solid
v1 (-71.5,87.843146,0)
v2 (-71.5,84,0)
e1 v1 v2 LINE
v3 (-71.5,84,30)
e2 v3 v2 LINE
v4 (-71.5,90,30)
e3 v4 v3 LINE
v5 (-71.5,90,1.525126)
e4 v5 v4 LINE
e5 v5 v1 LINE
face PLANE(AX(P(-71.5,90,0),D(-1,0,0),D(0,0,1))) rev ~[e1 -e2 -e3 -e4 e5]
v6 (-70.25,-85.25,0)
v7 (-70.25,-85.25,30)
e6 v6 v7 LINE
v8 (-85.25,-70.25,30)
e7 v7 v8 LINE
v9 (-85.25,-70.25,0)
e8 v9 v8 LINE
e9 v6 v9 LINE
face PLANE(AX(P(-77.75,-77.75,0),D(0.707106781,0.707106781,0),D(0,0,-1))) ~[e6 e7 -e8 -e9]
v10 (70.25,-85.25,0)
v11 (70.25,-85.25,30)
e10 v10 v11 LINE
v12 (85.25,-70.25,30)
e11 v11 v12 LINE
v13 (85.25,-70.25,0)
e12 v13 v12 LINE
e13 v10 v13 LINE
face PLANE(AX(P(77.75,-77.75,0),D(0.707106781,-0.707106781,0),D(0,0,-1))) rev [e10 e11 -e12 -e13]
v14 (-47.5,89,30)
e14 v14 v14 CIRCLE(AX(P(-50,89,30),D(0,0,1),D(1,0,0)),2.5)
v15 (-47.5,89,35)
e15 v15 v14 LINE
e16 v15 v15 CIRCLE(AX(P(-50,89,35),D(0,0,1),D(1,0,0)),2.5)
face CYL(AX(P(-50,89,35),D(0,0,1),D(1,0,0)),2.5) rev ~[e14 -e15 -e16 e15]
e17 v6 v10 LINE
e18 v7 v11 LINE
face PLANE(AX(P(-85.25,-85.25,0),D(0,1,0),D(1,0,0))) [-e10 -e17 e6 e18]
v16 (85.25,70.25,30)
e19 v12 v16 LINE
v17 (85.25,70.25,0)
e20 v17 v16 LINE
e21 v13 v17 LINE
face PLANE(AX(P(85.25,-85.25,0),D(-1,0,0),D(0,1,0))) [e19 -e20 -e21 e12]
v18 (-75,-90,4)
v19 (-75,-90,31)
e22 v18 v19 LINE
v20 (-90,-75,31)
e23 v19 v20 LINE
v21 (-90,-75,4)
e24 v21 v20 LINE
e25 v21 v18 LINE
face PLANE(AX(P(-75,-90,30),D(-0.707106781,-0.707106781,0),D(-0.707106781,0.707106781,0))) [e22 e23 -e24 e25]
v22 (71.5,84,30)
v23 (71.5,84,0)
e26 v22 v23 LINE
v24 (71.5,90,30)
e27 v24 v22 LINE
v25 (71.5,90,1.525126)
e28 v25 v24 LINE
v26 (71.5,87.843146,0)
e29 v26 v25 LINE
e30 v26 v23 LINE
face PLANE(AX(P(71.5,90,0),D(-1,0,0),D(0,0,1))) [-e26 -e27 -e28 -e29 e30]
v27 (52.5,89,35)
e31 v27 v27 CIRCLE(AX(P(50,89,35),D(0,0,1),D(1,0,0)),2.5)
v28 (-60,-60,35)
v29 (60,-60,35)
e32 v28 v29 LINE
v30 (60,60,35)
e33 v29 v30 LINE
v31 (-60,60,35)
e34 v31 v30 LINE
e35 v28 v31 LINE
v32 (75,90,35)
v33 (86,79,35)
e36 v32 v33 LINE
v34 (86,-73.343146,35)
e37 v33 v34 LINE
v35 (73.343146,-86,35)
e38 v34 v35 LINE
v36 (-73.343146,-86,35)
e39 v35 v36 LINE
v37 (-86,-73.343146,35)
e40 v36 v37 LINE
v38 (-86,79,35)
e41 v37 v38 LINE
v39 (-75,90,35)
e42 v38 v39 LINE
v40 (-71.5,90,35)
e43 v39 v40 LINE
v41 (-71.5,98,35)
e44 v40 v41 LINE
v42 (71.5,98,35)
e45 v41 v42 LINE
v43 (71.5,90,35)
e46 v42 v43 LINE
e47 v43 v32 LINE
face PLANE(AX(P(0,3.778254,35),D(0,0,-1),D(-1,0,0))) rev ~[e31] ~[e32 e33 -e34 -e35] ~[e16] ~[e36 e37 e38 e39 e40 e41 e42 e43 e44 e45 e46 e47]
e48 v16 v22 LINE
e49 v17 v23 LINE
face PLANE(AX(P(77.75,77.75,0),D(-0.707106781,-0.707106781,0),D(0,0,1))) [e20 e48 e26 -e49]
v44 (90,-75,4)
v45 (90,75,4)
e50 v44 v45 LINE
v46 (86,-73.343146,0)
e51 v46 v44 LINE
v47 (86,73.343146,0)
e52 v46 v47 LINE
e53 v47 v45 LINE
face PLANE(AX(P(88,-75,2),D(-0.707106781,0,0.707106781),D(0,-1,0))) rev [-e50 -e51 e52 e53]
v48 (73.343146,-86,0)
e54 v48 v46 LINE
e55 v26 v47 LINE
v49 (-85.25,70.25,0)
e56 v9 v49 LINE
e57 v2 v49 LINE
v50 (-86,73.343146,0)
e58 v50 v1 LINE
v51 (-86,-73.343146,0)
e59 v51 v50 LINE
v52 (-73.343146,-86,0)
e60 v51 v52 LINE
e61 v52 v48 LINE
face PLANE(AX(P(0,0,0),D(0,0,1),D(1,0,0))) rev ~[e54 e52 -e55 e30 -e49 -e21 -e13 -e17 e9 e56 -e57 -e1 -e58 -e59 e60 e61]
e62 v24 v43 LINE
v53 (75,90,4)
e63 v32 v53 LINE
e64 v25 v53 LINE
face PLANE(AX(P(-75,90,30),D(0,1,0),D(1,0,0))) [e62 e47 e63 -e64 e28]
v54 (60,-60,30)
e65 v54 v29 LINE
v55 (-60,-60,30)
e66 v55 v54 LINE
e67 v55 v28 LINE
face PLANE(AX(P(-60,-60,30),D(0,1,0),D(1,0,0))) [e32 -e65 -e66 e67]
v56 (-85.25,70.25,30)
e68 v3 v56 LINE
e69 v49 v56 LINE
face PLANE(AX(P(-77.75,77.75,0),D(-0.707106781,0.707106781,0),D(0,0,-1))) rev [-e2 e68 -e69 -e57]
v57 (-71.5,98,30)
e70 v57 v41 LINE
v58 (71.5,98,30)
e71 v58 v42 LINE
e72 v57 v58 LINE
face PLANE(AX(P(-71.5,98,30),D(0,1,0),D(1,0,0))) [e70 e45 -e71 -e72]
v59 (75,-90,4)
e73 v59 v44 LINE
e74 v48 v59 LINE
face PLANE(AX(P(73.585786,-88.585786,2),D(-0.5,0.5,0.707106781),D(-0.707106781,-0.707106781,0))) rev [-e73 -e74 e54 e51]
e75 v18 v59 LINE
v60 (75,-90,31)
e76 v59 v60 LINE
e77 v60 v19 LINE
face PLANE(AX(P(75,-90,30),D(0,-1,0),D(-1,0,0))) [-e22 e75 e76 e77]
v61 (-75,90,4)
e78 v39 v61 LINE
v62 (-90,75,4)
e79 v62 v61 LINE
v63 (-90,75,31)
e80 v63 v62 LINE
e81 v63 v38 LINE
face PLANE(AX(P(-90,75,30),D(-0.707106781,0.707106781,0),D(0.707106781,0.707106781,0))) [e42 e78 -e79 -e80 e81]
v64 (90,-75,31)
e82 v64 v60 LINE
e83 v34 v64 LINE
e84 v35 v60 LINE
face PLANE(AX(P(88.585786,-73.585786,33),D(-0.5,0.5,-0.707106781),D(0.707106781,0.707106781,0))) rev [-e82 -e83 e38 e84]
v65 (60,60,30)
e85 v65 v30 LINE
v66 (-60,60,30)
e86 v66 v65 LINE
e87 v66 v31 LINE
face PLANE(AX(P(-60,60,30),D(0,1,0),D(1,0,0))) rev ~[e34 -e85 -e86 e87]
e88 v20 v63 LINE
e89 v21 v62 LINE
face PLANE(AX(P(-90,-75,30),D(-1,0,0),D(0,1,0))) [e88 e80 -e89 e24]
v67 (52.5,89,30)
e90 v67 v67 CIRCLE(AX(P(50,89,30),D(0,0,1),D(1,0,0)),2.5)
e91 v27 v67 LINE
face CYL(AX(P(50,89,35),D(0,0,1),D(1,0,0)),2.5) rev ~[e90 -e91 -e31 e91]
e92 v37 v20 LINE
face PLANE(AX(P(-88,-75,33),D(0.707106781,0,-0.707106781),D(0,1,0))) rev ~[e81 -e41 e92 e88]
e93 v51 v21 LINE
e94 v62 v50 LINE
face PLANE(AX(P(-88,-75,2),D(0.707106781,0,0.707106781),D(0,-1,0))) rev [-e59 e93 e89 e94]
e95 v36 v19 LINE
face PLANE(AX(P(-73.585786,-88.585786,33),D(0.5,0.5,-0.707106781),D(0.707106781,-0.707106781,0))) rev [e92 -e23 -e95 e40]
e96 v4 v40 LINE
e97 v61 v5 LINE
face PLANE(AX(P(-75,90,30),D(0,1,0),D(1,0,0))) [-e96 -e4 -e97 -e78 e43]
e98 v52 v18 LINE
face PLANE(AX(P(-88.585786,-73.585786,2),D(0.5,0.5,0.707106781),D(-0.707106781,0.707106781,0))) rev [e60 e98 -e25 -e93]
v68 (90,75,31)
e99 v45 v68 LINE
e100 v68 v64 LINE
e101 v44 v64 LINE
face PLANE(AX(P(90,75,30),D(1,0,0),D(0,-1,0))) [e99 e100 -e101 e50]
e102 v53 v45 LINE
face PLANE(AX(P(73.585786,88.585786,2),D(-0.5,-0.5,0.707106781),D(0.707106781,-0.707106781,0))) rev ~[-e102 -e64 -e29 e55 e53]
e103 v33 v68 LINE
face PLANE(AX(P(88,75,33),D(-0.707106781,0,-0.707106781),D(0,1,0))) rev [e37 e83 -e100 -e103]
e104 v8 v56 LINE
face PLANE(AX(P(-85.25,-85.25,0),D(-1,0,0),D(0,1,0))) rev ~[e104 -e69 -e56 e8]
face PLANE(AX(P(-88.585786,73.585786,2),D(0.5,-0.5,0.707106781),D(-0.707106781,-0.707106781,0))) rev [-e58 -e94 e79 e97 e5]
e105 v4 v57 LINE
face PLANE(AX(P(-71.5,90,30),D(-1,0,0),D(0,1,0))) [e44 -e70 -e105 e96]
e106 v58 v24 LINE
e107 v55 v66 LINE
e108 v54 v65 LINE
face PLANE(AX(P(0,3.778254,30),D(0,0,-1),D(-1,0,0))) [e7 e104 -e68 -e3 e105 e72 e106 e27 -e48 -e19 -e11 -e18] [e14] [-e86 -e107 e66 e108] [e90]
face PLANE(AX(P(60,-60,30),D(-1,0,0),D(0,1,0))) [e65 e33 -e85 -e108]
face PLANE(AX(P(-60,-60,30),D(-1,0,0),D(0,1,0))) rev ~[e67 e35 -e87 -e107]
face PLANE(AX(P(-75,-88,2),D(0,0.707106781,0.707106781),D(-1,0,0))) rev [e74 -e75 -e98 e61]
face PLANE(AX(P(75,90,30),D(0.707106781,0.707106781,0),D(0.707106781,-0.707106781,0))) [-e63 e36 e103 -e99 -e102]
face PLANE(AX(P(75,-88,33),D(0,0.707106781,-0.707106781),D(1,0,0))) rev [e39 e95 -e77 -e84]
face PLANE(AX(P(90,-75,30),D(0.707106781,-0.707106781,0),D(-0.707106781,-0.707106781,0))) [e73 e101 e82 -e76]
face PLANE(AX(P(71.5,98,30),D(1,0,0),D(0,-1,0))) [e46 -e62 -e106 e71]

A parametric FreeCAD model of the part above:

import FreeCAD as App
import Part
import Sketcher

V = App.Vector
Q = App.Units.Quantity


def edges_at(feature, points):
    """Names of the edges that pass closest to the given points."""
    edges = feature.Shape.Edges
    near = lambda p: min(range(len(edges)), key=lambda i: edges[i].distToShape(Part.Vertex(*p))[0])
    return sorted({f"Edge{near(p) + 1}" for p in points})

doc = App.newDocument("Part")
body = doc.addObject("PartDesign::Body", "Body")

# Sketch on XY plane
sketch1 = body.newObject("Sketcher::SketchObject", "Sketch")
sketch1.AttachmentSupport = (doc.getObject("XY_Plane"), [""])
sketch1.MapMode = "FlatFace"
sketch1.addGeometry([
    Part.LineSegment(V(-90, 90, 0), V(-90, -90, 0)),  # 0
    Part.LineSegment(V(-90, -90, 0), V(90, -90, 0)),  # 1
    Part.LineSegment(V(90, -90, 0), V(90, 90, 0)),  # 2
    Part.LineSegment(V(90, 90, 0), V(-90, 90, 0)),  # 3
    Part.LineSegment(V(85.25, -85.25, 0), V(-85.25, -85.25, 0)),  # 4
    Part.LineSegment(V(-85.25, -85.25, 0), V(-85.25, 85.25, 0)),  # 5
    Part.LineSegment(V(-85.25, 85.25, 0), V(85.25, 85.25, 0)),  # 6
    Part.LineSegment(V(85.25, 85.25, 0), V(85.25, -85.25, 0)),  # 7
], False)
sketch1.addConstraint([
    Sketcher.Constraint("Coincident", 0, 2, 1, 1),
    Sketcher.Constraint("Coincident", 1, 2, 2, 1),
    Sketcher.Constraint("Coincident", 2, 2, 3, 1),
    Sketcher.Constraint("Coincident", 3, 2, 0, 1),
    Sketcher.Constraint("Coincident", 4, 2, 5, 1),
    Sketcher.Constraint("Coincident", 5, 2, 6, 1),
    Sketcher.Constraint("Coincident", 6, 2, 7, 1),
    Sketcher.Constraint("Coincident", 7, 2, 4, 1),
    Sketcher.Constraint("Vertical", 0),
    Sketcher.Constraint("Horizontal", 1),
    Sketcher.Constraint("Vertical", 2),
    Sketcher.Constraint("Horizontal", 3),
    Sketcher.Constraint("Horizontal", 4),
    Sketcher.Constraint("Vertical", 5),
    Sketcher.Constraint("Horizontal", 6),
    Sketcher.Constraint("Vertical", 7),
    Sketcher.Constraint("Symmetric", 0, 2, 2, 2, -1, 1),
    Sketcher.Constraint("Symmetric", 4, 2, 6, 2, -1, 1),
    Sketcher.Constraint("Equal", 3, 0),
    Sketcher.Constraint("Equal", 6, 5),
    Sketcher.Constraint("DistanceX", 1, 1, 1, 2, Q("180 mm")),
    Sketcher.Constraint("DistanceX", 4, 2, 4, 1, Q("170.5 mm")),
])
pad1 = body.newObject("PartDesign::Pad", "Pad")
pad1.Profile = sketch1
pad1.Length = 30
doc.recompute()

chamfer = body.newObject("PartDesign::Chamfer", "Chamfer")
chamfer.Base = (pad1, edges_at(pad1, [
    (-90, -90, 15),
    (-85.25, -85.25, 15),
    (-85.25, 85.25, 15),
    (-90, 90, 15),
    (85.25, 85.25, 15),
    (90, 90, 15),
    (85.25, -85.25, 15),
    (90, -90, 15),
]))
chamfer.Size = 15

# Sketch on XY plane
sketch2 = body.newObject("Sketcher::SketchObject", "Sketch001")
sketch2.AttachmentSupport = (doc.getObject("XY_Plane"), [""])
sketch2.MapMode = "FlatFace"
sketch2.AttachmentOffset = App.Placement(V(0, 0, 30), App.Rotation())
sketch2.addGeometry([
    Part.LineSegment(V(-90, 75, 0), V(-90, -75, 0)),  # 0
    Part.LineSegment(V(-90, -75, 0), V(-75, -90, 0)),  # 1
    Part.LineSegment(V(-75, -90, 0), V(75, -90, 0)),  # 2
    Part.LineSegment(V(75, -90, 0), V(90, -75, 0)),  # 3
    Part.LineSegment(V(90, -75, 0), V(90, 75, 0)),  # 4
    Part.LineSegment(V(90, 75, 0), V(75, 90, 0)),  # 5
    Part.LineSegment(V(75, 90, 0), V(71.5, 90, 0)),  # 6
    Part.LineSegment(V(71.5, 90, 0), V(71.5, 98, 0)),  # 7
    Part.LineSegment(V(71.5, 98, 0), V(-71.5, 98, 0)),  # 8
    Part.LineSegment(V(-71.5, 98, 0), V(-71.5, 90, 0)),  # 9
    Part.LineSegment(V(-71.5, 90, 0), V(-75, 90, 0)),  # 10
    Part.LineSegment(V(-75, 90, 0), V(-90, 75, 0)),  # 11
    Part.LineSegment(V(-60, -60, 0), V(-60, 60, 0)),  # 12
    Part.LineSegment(V(-60, 60, 0), V(60, 60, 0)),  # 13
    Part.LineSegment(V(60, 60, 0), V(60, -60, 0)),  # 14
    Part.LineSegment(V(60, -60, 0), V(-60, -60, 0)),  # 15
], False)
sketch2.addConstraint([
    Sketcher.Constraint("Coincident", 0, 2, 1, 1),
    Sketcher.Constraint("Coincident", 1, 2, 2, 1),
    Sketcher.Constraint("Coincident", 2, 2, 3, 1),
    Sketcher.Constraint("Coincident", 3, 2, 4, 1),
    Sketcher.Constraint("Coincident", 4, 2, 5, 1),
    Sketcher.Constraint("Coincident", 5, 2, 6, 1),
    Sketcher.Constraint("Coincident", 6, 2, 7, 1),
    Sketcher.Constraint("Coincident", 7, 2, 8, 1),
    Sketcher.Constraint("Coincident", 8, 2, 9, 1),
    Sketcher.Constraint("Coincident", 9, 2, 10, 1),
    Sketcher.Constraint("Coincident", 10, 2, 11, 1),
    Sketcher.Constraint("Coincident", 11, 2, 0, 1),
    Sketcher.Constraint("Coincident", 12, 2, 13, 1),
    Sketcher.Constraint("Coincident", 13, 2, 14, 1),
    Sketcher.Constraint("Coincident", 14, 2, 15, 1),
    Sketcher.Constraint("Coincident", 15, 2, 12, 1),
    Sketcher.Constraint("Vertical", 0),
    Sketcher.Constraint("Horizontal", 2),
    Sketcher.Constraint("Vertical", 4),
    Sketcher.Constraint("Horizontal", 6),
    Sketcher.Constraint("Vertical", 7),
    Sketcher.Constraint("Horizontal", 8),
    Sketcher.Constraint("Vertical", 9),
    Sketcher.Constraint("Horizontal", 10),
    Sketcher.Constraint("Vertical", 12),
    Sketcher.Constraint("Horizontal", 13),
    Sketcher.Constraint("Vertical", 14),
    Sketcher.Constraint("Horizontal", 15),
    Sketcher.Constraint("Symmetric", 0, 2, 4, 2, -1, 1),
    Sketcher.Constraint("Symmetric", 1, 2, 5, 2, -1, 1),
    Sketcher.Constraint("Symmetric", 2, 2, 10, 2, -1, 1),
    Sketcher.Constraint("Symmetric", 12, 2, 14, 2, -1, 1),
    Sketcher.Constraint("Perpendicular", 1, 3),
    Sketcher.Constraint("Perpendicular", 5, 11),
    Sketcher.Constraint("Horizontal", 0, 2, 3, 2),
    Sketcher.Constraint("Vertical", 2, 2, 5, 2),
    Sketcher.Constraint("Equal", 6, 10),
    Sketcher.Constraint("Equal", 2, 0),
    Sketcher.Constraint("Equal", 15, 12),
    Sketcher.Constraint("DistanceX", 2, 1, 2, 2, Q("150 mm")),
    Sketcher.Constraint("DistanceX", 8, 2, 8, 1, Q("143 mm")),
    Sketcher.Constraint("DistanceX", 13, 1, 13, 2, Q("120 mm")),
    Sketcher.Constraint("DistanceY", 7, 1, 7, 2, Q("8 mm")),
    Sketcher.Constraint("DistanceX", 0, 2, -1, 1, Q("90 mm")),
])
pad2 = body.newObject("PartDesign::Pad", "Pad001")
pad2.Profile = sketch2
pad2.Length = 5

# Sketch on XZ plane
sketch3 = body.newObject("Sketcher::SketchObject", "Sketch002")
sketch3.AttachmentSupport = (doc.getObject("XZ_Plane"), [""])
sketch3.MapMode = "FlatFace"
sketch3.AttachmentOffset = App.Placement(V(0, 0, -90), App.Rotation())
sketch3.addGeometry([
    Part.LineSegment(V(71.5, 30, 0), V(71.5, 0, 0)),
    Part.LineSegment(V(71.5, 0, 0), V(-71.5, 0, 0)),
    Part.LineSegment(V(-71.5, 0, 0), V(-71.5, 30, 0)),
    Part.LineSegment(V(-71.5, 30, 0), V(71.5, 30, 0)),
], False)
sketch3.addConstraint([
    Sketcher.Constraint("Coincident", 0, 2, 1, 1),
    Sketcher.Constraint("Coincident", 1, 2, 2, 1),
    Sketcher.Constraint("Coincident", 2, 2, 3, 1),
    Sketcher.Constraint("Coincident", 3, 2, 0, 1),
    Sketcher.Constraint("Vertical", 0),
    Sketcher.Constraint("Horizontal", 1),
    Sketcher.Constraint("Vertical", 2),
    Sketcher.Constraint("Horizontal", 3),
    Sketcher.Constraint("Symmetric", 0, 2, 1, 2, -1, 1),
    Sketcher.Constraint("DistanceX", 1, 2, 1, 1, Q("143 mm")),
    Sketcher.Constraint("DistanceY", 0, 2, 0, 1, Q("30 mm")),
])
pocket1 = body.newObject("PartDesign::Pocket", "Pocket")
pocket1.Profile = sketch3
pocket1.Length = 10
pocket1.Reversed = True

# Sketch on XY plane
sketch4 = body.newObject("Sketcher::SketchObject", "Sketch003")
sketch4.AttachmentSupport = (doc.getObject("XY_Plane"), [""])
sketch4.MapMode = "FlatFace"
sketch4.AttachmentOffset = App.Placement(V(0, 0, 35), App.Rotation())
sketch4.addGeometry([
    Part.Circle(V(-50, 89, 0), V(0, 0, 1), 2.5),
    Part.Circle(V(50, 89, 0), V(0, 0, 1), 2.5),
], False)
sketch4.addConstraint([
    Sketcher.Constraint("Equal", 0, 1),
    Sketcher.Constraint("Symmetric", 0, 3, 1, 3, -2),
    Sketcher.Constraint("Diameter", 0, Q("5 mm")),
    Sketcher.Constraint("DistanceX", 0, 3, -1, 1, Q("50 mm")),
    Sketcher.Constraint("DistanceY", -1, 1, 0, 3, Q("89 mm")),
])
pocket2 = body.newObject("PartDesign::Pocket", "Pocket001")
pocket2.Profile = sketch4
pocket2.Type = "ThroughAll"
doc.recompute()

chamfer2 = body.newObject("PartDesign::Chamfer", "Chamfer001")
chamfer2.Base = (pocket2, edges_at(pocket2, [
    (90, 0, 35),
    (82.5, -82.5, 35),
    (0, -90, 35),
    (-82.5, -82.5, 35),
    (-90, 0, 35),
]))
chamfer2.Size = 4
doc.recompute()

chamfer3 = body.newObject("PartDesign::Chamfer", "Chamfer002")
chamfer3.Base = (chamfer2, edges_at(chamfer2, [
    (82.5, 82.5, 0),
    (90, 0, 0),
    (82.5, -82.5, 0),
    (0, -90, 0),
    (-82.5, -82.5, 0),
    (-90, 0, 0),
    (-82.5, 82.5, 0),
]))
chamfer3.Size = 4

doc.recompute()
